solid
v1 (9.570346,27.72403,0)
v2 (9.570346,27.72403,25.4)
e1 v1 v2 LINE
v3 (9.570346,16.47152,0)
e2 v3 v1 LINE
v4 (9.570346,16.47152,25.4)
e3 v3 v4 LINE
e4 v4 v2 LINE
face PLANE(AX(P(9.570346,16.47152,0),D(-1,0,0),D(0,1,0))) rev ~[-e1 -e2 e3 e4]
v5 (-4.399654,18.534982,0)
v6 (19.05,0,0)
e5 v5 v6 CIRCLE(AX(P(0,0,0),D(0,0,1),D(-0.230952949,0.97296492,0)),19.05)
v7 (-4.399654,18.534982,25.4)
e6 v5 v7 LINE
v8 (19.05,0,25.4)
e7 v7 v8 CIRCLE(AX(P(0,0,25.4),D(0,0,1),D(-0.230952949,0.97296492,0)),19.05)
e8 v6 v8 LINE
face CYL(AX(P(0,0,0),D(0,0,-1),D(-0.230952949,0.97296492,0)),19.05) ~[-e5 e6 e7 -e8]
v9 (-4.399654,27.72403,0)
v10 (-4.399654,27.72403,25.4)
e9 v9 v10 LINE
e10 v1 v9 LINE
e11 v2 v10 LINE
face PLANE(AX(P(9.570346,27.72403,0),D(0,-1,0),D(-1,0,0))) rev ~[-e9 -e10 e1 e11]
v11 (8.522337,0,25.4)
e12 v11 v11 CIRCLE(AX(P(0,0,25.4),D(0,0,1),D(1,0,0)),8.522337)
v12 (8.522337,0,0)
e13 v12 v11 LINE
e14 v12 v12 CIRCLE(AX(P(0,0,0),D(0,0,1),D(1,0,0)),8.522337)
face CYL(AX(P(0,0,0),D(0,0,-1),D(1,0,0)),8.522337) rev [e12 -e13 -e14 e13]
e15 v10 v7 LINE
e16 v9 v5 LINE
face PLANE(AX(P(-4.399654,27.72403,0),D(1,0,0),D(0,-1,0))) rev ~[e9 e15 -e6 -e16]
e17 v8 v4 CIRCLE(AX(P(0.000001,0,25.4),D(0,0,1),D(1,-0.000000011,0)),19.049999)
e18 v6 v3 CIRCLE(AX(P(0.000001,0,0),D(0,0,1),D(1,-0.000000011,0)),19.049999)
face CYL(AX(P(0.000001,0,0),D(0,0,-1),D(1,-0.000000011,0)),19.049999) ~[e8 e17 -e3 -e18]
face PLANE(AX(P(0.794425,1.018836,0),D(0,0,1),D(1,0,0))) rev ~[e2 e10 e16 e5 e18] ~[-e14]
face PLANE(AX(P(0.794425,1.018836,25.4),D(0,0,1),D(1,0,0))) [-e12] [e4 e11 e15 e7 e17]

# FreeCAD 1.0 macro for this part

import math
import FreeCAD as App
import Part
import Sketcher
from FreeCAD import Vector
Q = App.Units.Quantity

doc = App.newDocument("Part")
body = doc.addObject("PartDesign::Body", "Body")

# Sketch on XY plane
sketch1 = body.newObject("Sketcher::SketchObject", "Sketch")
sketch1.AttachmentSupport = (doc.getObject("XY_Plane"), [""])
sketch1.MapMode = "FlatFace"
sketch1.addGeometry([
    Part.ArcOfCircle(Part.Circle(Vector(0, 0, 0), Vector(0, 0, 1), 19), math.radians(103), math.radians(360)),  # 0
    Part.ArcOfCircle(Part.Circle(Vector(0, 0, 0), Vector(0, 0, 1), 19), math.radians(0), math.radians(60)),  # 1
    Part.LineSegment(Vector(10, 16, 0), Vector(10, 28, 0)),  # 2
    Part.LineSegment(Vector(10, 28, 0), Vector(-4, 28, 0)),  # 3
    Part.LineSegment(Vector(-4, 28, 0), Vector(-4, 19, 0)),  # 4
    Part.Circle(Vector(0, 0, 0), Vector(0, 0, 1), 9),  # 5
], False)
sketch1.addConstraint([
    Sketcher.Constraint("Tangent", 0, 2, 1, 1),
    Sketcher.Constraint("Coincident", 1, 2, 2, 1),
    Sketcher.Constraint("Coincident", 2, 2, 3, 1),
    Sketcher.Constraint("Coincident", 3, 2, 4, 1),
    Sketcher.Constraint("Coincident", 4, 2, 0, 1),
    Sketcher.Constraint("Vertical", 2),
    Sketcher.Constraint("Horizontal", 3),
    Sketcher.Constraint("Vertical", 4),
    Sketcher.Constraint("Coincident", 0, 3, -1, 1),
    Sketcher.Constraint("Coincident", 5, 3, -1, 1),
    Sketcher.Constraint("Equal", 0, 1),
    Sketcher.Constraint("PointOnObject", 0, 2, -1),
    Sketcher.Constraint("Radius", 0, Q("0.75 in")),
    Sketcher.Constraint("DistanceX", 3, 2, 3, 1, Q("0.55 in")),
    Sketcher.Constraint("Diameter", 5, 17.044674),
    Sketcher.Constraint("DistanceY", 2, 1, 2, 2, 11.25251),
    Sketcher.Constraint("DistanceY", 4, 2, 4, 1, 9.189048),
])
pad1 = body.newObject("PartDesign::Pad", "Pad")
pad1.Profile = sketch1
pad1.Length = Q("1 in")

doc.recompute()
